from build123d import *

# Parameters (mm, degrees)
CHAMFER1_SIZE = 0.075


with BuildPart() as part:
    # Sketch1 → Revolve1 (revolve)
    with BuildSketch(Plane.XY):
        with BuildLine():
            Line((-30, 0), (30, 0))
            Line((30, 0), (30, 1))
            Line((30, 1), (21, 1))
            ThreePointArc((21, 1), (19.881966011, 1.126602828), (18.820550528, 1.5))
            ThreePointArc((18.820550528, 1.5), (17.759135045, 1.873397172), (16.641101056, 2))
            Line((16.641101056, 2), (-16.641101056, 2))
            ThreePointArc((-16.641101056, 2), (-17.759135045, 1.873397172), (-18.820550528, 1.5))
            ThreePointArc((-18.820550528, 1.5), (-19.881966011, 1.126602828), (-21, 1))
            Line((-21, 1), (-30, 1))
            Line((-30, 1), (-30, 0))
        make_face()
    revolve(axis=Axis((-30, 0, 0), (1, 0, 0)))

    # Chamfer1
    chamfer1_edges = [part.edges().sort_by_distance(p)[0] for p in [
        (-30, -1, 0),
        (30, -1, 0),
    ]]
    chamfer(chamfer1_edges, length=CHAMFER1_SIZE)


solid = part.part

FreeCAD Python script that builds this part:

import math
import FreeCAD as App
import Part
import Sketcher
Q = App.Units.Quantity


def edges_at(feature, points):
    """Names of the edges that pass closest to the given points."""
    edges = feature.Shape.Edges
    near = lambda p: min(range(len(edges)), key=lambda i: edges[i].distToShape(Part.Vertex(*p))[0])
    return sorted({f"Edge{near(p) + 1}" for p in points})

doc = App.newDocument("Part")
body = doc.addObject("PartDesign::Body", "Body")

sketch1 = body.newObject("Sketcher::SketchObject", "Sketch")
sketch1.AttachmentSupport = (doc.getObject("XY_Plane"), [""])
sketch1.MapMode = "FlatFace"
sketch1.addGeometry([
    Part.LineSegment(App.Vector(-30, 0, 0), App.Vector(30, 0, 0)),
    Part.LineSegment(App.Vector(30, 0, 0), App.Vector(30, 1, 0)),
    Part.LineSegment(App.Vector(30, 1, 0), App.Vector(21, 1, 0)),
    Part.ArcOfCircle(Part.Circle(App.Vector(21, 6, 0), App.Vector(0, 0, 1), 5), math.radians(-115.841933), math.radians(-90)),
    Part.ArcOfCircle(Part.Circle(App.Vector(16.641101, -3, 0), App.Vector(0, 0, 1), 5), math.radians(64.158067), math.radians(90)),
    Part.LineSegment(App.Vector(16.641101, 2, 0), App.Vector(-16.641101, 2, 0)),
    Part.ArcOfCircle(Part.Circle(App.Vector(-16.641101, -3, 0), App.Vector(0, 0, 1), 5), math.radians(90), math.radians(115.841933)),
    Part.ArcOfCircle(Part.Circle(App.Vector(-21, 6, 0), App.Vector(0, 0, 1), 5), math.radians(-90), math.radians(-64.158067)),
    Part.LineSegment(App.Vector(-21, 1, 0), App.Vector(-30, 1, 0)),
    Part.LineSegment(App.Vector(-30, 1, 0), App.Vector(-30, 0, 0)),
], False)
sketch1.addConstraint([
    Sketcher.Constraint("Coincident", 0, 2, 1, 1),
    Sketcher.Constraint("Coincident", 1, 2, 2, 1),
    Sketcher.Constraint("Tangent", 2, 2, 3, 2),
    Sketcher.Constraint("Tangent", 3, 1, 4, 1),
    Sketcher.Constraint("Tangent", 4, 2, 5, 1),
    Sketcher.Constraint("Tangent", 5, 2, 6, 1),
    Sketcher.Constraint("Tangent", 6, 2, 7, 2),
    Sketcher.Constraint("Tangent", 7, 1, 8, 1),
    Sketcher.Constraint("Coincident", 8, 2, 9, 1),
    Sketcher.Constraint("Coincident", 9, 2, 0, 1),
    Sketcher.Constraint("Horizontal", 0),
    Sketcher.Constraint("Vertical", 1),
    Sketcher.Constraint("Horizontal", 2),
    Sketcher.Constraint("Horizontal", 5),
    Sketcher.Constraint("Horizontal", 8),
    Sketcher.Constraint("Vertical", 9),
    Sketcher.Constraint("Equal", 3, 4),
    Sketcher.Constraint("Equal", 4, 6),
    Sketcher.Constraint("Equal", 6, 7),
    Sketcher.Constraint("Symmetric", 0, 2, 9, 2, -1, 1),
    Sketcher.Constraint("Symmetric", 3, 3, 7, 3, -2),
    Sketcher.Constraint("Radius", 3, Q("5 mm")),
    Sketcher.Constraint("DistanceX", 0, 1, 0, 2, Q("60 mm")),
    Sketcher.Constraint("DistanceX", 2, 2, 2, 1, Q("9 mm")),
    Sketcher.Constraint("DistanceY", 1, 1, 1, 2, Q("1 mm")),
    Sketcher.Constraint("DistanceY", 4, 3, -1, 1, Q("3 mm")),
])
revolution = body.newObject("PartDesign::Revolution", "Revolution")
revolution.Profile = sketch1
revolution.ReferenceAxis = (sketch1, ["H_Axis"])
revolution.Angle = 360
doc.recompute()

chamfer = body.newObject("PartDesign::Chamfer", "Chamfer")
chamfer.Base = (revolution, edges_at(revolution, [(-30, -1, 0), (30, -1, 0)]))
chamfer.Size = 0.075

doc.recompute()
